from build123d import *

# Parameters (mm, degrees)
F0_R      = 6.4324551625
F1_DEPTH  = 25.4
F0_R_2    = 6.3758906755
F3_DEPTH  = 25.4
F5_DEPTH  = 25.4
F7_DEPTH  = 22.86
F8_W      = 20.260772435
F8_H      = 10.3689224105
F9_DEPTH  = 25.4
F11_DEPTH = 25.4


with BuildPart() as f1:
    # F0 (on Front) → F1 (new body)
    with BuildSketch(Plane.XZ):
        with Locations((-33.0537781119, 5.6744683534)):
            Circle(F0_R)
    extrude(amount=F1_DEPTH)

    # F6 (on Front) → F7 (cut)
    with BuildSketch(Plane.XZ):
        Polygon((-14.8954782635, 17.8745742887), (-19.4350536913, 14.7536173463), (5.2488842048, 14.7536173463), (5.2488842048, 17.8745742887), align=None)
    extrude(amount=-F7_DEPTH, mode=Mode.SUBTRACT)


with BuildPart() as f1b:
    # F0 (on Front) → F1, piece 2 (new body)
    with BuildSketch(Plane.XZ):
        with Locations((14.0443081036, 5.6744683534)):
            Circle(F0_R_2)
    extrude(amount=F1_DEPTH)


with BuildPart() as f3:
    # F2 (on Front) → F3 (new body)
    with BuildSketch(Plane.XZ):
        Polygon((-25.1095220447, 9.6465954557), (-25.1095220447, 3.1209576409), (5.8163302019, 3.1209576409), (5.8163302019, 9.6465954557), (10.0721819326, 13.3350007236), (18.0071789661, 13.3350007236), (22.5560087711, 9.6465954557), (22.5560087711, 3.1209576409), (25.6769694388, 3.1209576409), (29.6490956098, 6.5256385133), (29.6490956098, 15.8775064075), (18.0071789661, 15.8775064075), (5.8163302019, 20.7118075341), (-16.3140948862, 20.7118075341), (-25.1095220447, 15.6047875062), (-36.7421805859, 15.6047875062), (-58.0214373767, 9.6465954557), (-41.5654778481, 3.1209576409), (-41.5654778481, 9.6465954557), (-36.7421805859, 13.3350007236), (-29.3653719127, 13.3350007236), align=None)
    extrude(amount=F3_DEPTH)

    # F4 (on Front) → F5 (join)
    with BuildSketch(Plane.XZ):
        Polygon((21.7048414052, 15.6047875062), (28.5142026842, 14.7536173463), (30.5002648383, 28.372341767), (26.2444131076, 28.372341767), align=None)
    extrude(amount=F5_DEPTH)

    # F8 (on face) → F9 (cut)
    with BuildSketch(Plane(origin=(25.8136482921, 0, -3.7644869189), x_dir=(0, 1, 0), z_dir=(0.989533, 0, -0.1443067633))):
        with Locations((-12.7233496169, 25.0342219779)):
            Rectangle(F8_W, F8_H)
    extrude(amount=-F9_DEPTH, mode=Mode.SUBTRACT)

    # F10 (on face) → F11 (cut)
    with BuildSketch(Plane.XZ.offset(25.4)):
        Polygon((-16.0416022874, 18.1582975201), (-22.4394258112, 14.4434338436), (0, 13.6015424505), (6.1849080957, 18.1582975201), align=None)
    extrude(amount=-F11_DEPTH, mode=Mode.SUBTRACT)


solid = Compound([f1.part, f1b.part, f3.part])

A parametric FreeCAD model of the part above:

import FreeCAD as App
import Part
import Sketcher

V = App.Vector
Q = App.Units.Quantity


def add_polygon(sketch, points):
    """Adds a closed chain of lines whose ends are joined by coincident constraints."""
    first, n = sketch.GeometryCount, len(points)
    for a, b in zip(points, points[1:] + points[:1]):
        sketch.addGeometry(Part.LineSegment(App.Vector(*a, 0), App.Vector(*b, 0)), False)
    for i in range(n):
        sketch.addConstraint(Sketcher.Constraint("Coincident", first + i, 2, first + (i + 1) % n, 1))

doc = App.newDocument("Part")
body = doc.addObject("PartDesign::Body", "Body")

# Sketch on XZ plane
sketch1 = body.newObject("Sketcher::SketchObject", "Sketch")
sketch1.AttachmentSupport = (doc.getObject("XZ_Plane"), [""])
sketch1.MapMode = "FlatFace"
sketch1.addGeometry(Part.Circle(V(-33, 6, 0), V(0, 0, 1), 6), False)
sketch1.addConstraint(Sketcher.Constraint("Diameter", 0, Q("12.86491 mm")))
sketch1.addConstraint(Sketcher.Constraint("DistanceX", 0, 3, -1, 1, Q("33.053778 mm")))
sketch1.addConstraint(Sketcher.Constraint("DistanceY", -1, 1, 0, 3, Q("5.674468 mm")))
pad1 = body.newObject("PartDesign::Pad", "Pad")
pad1.Profile = sketch1
pad1.Length = Q("1 in")

# Sketch on XZ plane
sketch2 = body.newObject("Sketcher::SketchObject", "Sketch001")
sketch2.AttachmentSupport = (doc.getObject("XZ_Plane"), [""])
sketch2.MapMode = "FlatFace"
add_polygon(sketch2, [(-14.9, 17.9), (-19.4, 14.8), (5.2, 14.8), (5.2, 17.9)])  # lines 0-3
sketch2.addConstraint(Sketcher.Constraint("Horizontal", 1))
sketch2.addConstraint(Sketcher.Constraint("Vertical", 2))
sketch2.addConstraint(Sketcher.Constraint("Horizontal", 3))
sketch2.addConstraint(Sketcher.Constraint("DistanceX", 1, 1, 1, 2, Q("24.683938 mm")))
sketch2.addConstraint(Sketcher.Constraint("DistanceX", 3, 2, 3, 1, Q("20.144362 mm")))
sketch2.addConstraint(Sketcher.Constraint("DistanceY", 2, 1, 2, 2, Q("3.120957 mm")))
sketch2.addConstraint(Sketcher.Constraint("DistanceX", 3, 2, -1, 1, Q("14.895478 mm")))
sketch2.addConstraint(Sketcher.Constraint("DistanceY", -1, 1, 0, 2, Q("14.753617 mm")))
pocket1 = body.newObject("PartDesign::Pocket", "Pocket")
pocket1.Profile = sketch2
pocket1.Length = Q("0.9 in")
body2 = doc.addObject("PartDesign::Body", "Body001")

# Sketch on XZ plane
sketch3 = body2.newObject("Sketcher::SketchObject", "Sketch002")
sketch3.AttachmentSupport = (doc.getObject("XZ_Plane001"), [""])
sketch3.MapMode = "FlatFace"
sketch3.addGeometry(Part.Circle(V(14, 6, 0), V(0, 0, 1), 6), False)
sketch3.addConstraint(Sketcher.Constraint("Diameter", 0, Q("12.751781 mm")))
sketch3.addConstraint(Sketcher.Constraint("DistanceX", -1, 1, 0, 3, Q("14.044308 mm")))
sketch3.addConstraint(Sketcher.Constraint("DistanceY", -1, 1, 0, 3, Q("5.674468 mm")))
pad2 = body2.newObject("PartDesign::Pad", "Pad001")
pad2.Profile = sketch3
pad2.Length = Q("1 in")
body3 = doc.addObject("PartDesign::Body", "Body002")

# Sketch on XZ plane
sketch4 = body3.newObject("Sketcher::SketchObject", "Sketch003")
sketch4.AttachmentSupport = (doc.getObject("XZ_Plane002"), [""])
sketch4.MapMode = "FlatFace"
add_polygon(sketch4, [(-25.1, 9.6), (-25.1, 3.1), (5.8, 3.1), (5.8, 9.6), (10.1, 13.3), (18, 13.3), (22.6, 9.6), (22.6, 3.1), (25.7, 3.1), (29.6, 6.5), (29.6, 15.9), (18, 15.9), (5.8, 20.7), (-16.3, 20.7), (-25.1, 15.6), (-36.7, 15.6), (-58, 9.6), (-41.6, 3.1), (-41.6, 9.6), (-36.7, 13.3), (-29.4, 13.3)])  # lines 0-20
sketch4.addConstraint(Sketcher.Constraint("Vertical", 0))
sketch4.addConstraint(Sketcher.Constraint("Horizontal", 1))
sketch4.addConstraint(Sketcher.Constraint("Vertical", 2))
sketch4.addConstraint(Sketcher.Constraint("Horizontal", 4))
sketch4.addConstraint(Sketcher.Constraint("Vertical", 6))
sketch4.addConstraint(Sketcher.Constraint("Horizontal", 7))
sketch4.addConstraint(Sketcher.Constraint("Vertical", 9))
sketch4.addConstraint(Sketcher.Constraint("Horizontal", 10))
sketch4.addConstraint(Sketcher.Constraint("Horizontal", 12))
sketch4.addConstraint(Sketcher.Constraint("Horizontal", 14))
sketch4.addConstraint(Sketcher.Constraint("Vertical", 17))
sketch4.addConstraint(Sketcher.Constraint("Horizontal", 19))
sketch4.addConstraint(Sketcher.Constraint("Parallel", 11, 16))
sketch4.addConstraint(Sketcher.Constraint("Horizontal", 2, 2, 5, 2))
sketch4.addConstraint(Sketcher.Constraint("Horizontal", 1, 2, 6, 2))
sketch4.addConstraint(Sketcher.Constraint("Horizontal", 5, 2, 15, 2))
sketch4.addConstraint(Sketcher.Constraint("Horizontal", 7, 2, 16, 2))
sketch4.addConstraint(Sketcher.Constraint("Horizontal", 15, 2, 17, 2))
sketch4.addConstraint(Sketcher.Constraint("Horizontal", 4, 2, 18, 2))
sketch4.addConstraint(Sketcher.Constraint("Horizontal", 17, 2, 20, 2))
sketch4.addConstraint(Sketcher.Constraint("Vertical", 4, 2, 10, 2))
sketch4.addConstraint(Sketcher.Constraint("Vertical", 2, 2, 11, 2))
sketch4.addConstraint(Sketcher.Constraint("Vertical", 0, 2, 13, 2))
sketch4.addConstraint(Sketcher.Constraint("Vertical", 14, 2, 18, 2))
sketch4.addConstraint(Sketcher.Constraint("Equal", 3, 20))
sketch4.addConstraint(Sketcher.Constraint("DistanceY", -1, 1, 3, 2, Q("0.525 in")))
sketch4.addConstraint(Sketcher.Constraint("Distance", 8, Q("5.2316 mm")))
sketch4.addConstraint(Sketcher.Constraint("DistanceX", 7, 1, 7, 2, Q("3.120961 mm")))
sketch4.addConstraint(Sketcher.Constraint("DistanceX", 14, 2, 14, 1, Q("11.632659 mm")))
sketch4.addConstraint(Sketcher.Constraint("DistanceX", 19, 1, 19, 2, Q("7.376809 mm")))
sketch4.addConstraint(Sketcher.Constraint("DistanceX", 0, 2, 4, 2, Q("43.116701 mm")))
sketch4.addConstraint(Sketcher.Constraint("DistanceY", 10, 2, 11, 2, Q("4.834301 mm")))
sketch4.addConstraint(Sketcher.Constraint("Distance", 3, Q("5.63175 mm")))
sketch4.addConstraint(Sketcher.Constraint("Distance", 11, Q("13.114391 mm")))
sketch4.addConstraint(Sketcher.Constraint("DistanceX", 10, 2, 10, 1, Q("11.641917 mm")))
sketch4.addConstraint(Sketcher.Constraint("DistanceX", 12, 2, 12, 1, Q("22.130425 mm")))
sketch4.addConstraint(Sketcher.Constraint("DistanceY", 0, 2, 0, 1, Q("6.525638 mm")))
sketch4.addConstraint(Sketcher.Constraint("DistanceY", 9, 1, 9, 2, Q("9.351868 mm")))
sketch4.addConstraint(Sketcher.Constraint("DistanceX", -1, 1, 1, 2, Q("5.81633 mm")))
sketch4.addConstraint(Sketcher.Constraint("DistanceX", -1, 1, 5, 2, Q("22.556009 mm")))
sketch4.addConstraint(Sketcher.Constraint("DistanceY", 13, 2, 12, 2, Q("5.10702 mm")))
sketch4.addConstraint(Sketcher.Constraint("Distance", 15, Q("22.097666 mm")))
pad3 = body3.newObject("PartDesign::Pad", "Pad002")
pad3.Profile = sketch4
pad3.Length = Q("1 in")

# Sketch on XZ plane
sketch5 = body3.newObject("Sketcher::SketchObject", "Sketch004")
sketch5.AttachmentSupport = (doc.getObject("XZ_Plane002"), [""])
sketch5.MapMode = "FlatFace"
add_polygon(sketch5, [(21.7, 15.6), (28.5, 14.8), (30.5, 28.4), (26.2, 28.4)])  # lines 0-3
sketch5.addConstraint(Sketcher.Constraint("Horizontal", 2))
sketch5.addConstraint(Sketcher.Constraint("DistanceX", 2, 2, 2, 1, Q("4.255852 mm")))
sketch5.addConstraint(Sketcher.Constraint("Distance", 1, Q("13.762779 mm")))
sketch5.addConstraint(Sketcher.Constraint("DistanceY", -1, 1, 1, 2, Q("28.372342 mm")))
sketch5.addConstraint(Sketcher.Constraint("DistanceX", -1, 1, 3, 2, Q("21.704841 mm")))
sketch5.addConstraint(Sketcher.Constraint("DistanceX", 2, 2, 0, 2, Q("2.26979 mm")))
sketch5.addConstraint(Sketcher.Constraint("DistanceX", 3, 2, 0, 2, Q("6.809361 mm")))
sketch5.addConstraint(Sketcher.Constraint("DistanceY", 0, 2, 3, 2, Q("0.85117 mm")))
pad4 = body3.newObject("PartDesign::Pad", "Pad003")
pad4.Profile = sketch5
pad4.Length = Q("1 in")

# Sketch on an angled plane
sketch6 = body3.newObject("Sketcher::SketchObject", "Sketch005")
sketch6.Placement = App.Placement(V(25.813648, 0, -3.764487), App.Rotation(V(0, 1, 0), V(0.144306763, 0, 0.989533), V(0.989533, 0, -0.144306763), "ZXY"))
add_polygon(sketch6, [(-23, 30), (-23, 20), (-3, 20), (-3, 30)])  # lines 0-3
sketch6.addConstraint(Sketcher.Constraint("Vertical", 0))
sketch6.addConstraint(Sketcher.Constraint("Horizontal", 1))
sketch6.addConstraint(Sketcher.Constraint("Vertical", 2))
sketch6.addConstraint(Sketcher.Constraint("Horizontal", 3))
sketch6.addConstraint(Sketcher.Constraint("DistanceX", 1, 1, 1, 2, Q("20.260772 mm")))
sketch6.addConstraint(Sketcher.Constraint("DistanceY", 0, 2, 0, 1, Q("10.368922 mm")))
sketch6.addConstraint(Sketcher.Constraint("DistanceY", -1, 1, 0, 2, Q("19.849761 mm")))
sketch6.addConstraint(Sketcher.Constraint("DistanceX", 0, 2, -1, 1, Q("22.853736 mm")))
pocket2 = body3.newObject("PartDesign::Pocket", "Pocket001")
pocket2.Profile = sketch6
pocket2.Length = Q("1 in")

# Sketch on XZ plane
sketch7 = body3.newObject("Sketcher::SketchObject", "Sketch006")
sketch7.AttachmentSupport = (doc.getObject("XZ_Plane002"), [""])
sketch7.MapMode = "FlatFace"
sketch7.AttachmentOffset = App.Placement(V(0, 0, 1 * 25.4), App.Rotation())
add_polygon(sketch7, [(-16, 18), (-22, 14), (0, 14), (6, 18)])  # lines 0-3
sketch7.addConstraint(Sketcher.Constraint("Horizontal", 3))
sketch7.addConstraint(Sketcher.Constraint("PointOnObject", 1, 2, -2))
sketch7.addConstraint(Sketcher.Constraint("DistanceY", 1, 2, 2, 2, Q("0.1793998 in")))
sketch7.addConstraint(Sketcher.Constraint("DistanceX", 3, 2, 3, 1, Q("22.22651 mm")))
sketch7.addConstraint(Sketcher.Constraint("Distance", 2, Q("7.682259 mm")))
sketch7.addConstraint(Sketcher.Constraint("DistanceY", 1, 2, 0, 2, Q("0.841891 mm")))
sketch7.addConstraint(Sketcher.Constraint("Distance", 0, Q("7.398132 mm")))
sketch7.addConstraint(Sketcher.Constraint("DistanceY", -1, 1, 0, 2, Q("14.443434 mm")))
pocket3 = body3.newObject("PartDesign::Pocket", "Pocket002")
pocket3.Profile = sketch7
pocket3.Length = Q("1 in")

doc.recompute()
